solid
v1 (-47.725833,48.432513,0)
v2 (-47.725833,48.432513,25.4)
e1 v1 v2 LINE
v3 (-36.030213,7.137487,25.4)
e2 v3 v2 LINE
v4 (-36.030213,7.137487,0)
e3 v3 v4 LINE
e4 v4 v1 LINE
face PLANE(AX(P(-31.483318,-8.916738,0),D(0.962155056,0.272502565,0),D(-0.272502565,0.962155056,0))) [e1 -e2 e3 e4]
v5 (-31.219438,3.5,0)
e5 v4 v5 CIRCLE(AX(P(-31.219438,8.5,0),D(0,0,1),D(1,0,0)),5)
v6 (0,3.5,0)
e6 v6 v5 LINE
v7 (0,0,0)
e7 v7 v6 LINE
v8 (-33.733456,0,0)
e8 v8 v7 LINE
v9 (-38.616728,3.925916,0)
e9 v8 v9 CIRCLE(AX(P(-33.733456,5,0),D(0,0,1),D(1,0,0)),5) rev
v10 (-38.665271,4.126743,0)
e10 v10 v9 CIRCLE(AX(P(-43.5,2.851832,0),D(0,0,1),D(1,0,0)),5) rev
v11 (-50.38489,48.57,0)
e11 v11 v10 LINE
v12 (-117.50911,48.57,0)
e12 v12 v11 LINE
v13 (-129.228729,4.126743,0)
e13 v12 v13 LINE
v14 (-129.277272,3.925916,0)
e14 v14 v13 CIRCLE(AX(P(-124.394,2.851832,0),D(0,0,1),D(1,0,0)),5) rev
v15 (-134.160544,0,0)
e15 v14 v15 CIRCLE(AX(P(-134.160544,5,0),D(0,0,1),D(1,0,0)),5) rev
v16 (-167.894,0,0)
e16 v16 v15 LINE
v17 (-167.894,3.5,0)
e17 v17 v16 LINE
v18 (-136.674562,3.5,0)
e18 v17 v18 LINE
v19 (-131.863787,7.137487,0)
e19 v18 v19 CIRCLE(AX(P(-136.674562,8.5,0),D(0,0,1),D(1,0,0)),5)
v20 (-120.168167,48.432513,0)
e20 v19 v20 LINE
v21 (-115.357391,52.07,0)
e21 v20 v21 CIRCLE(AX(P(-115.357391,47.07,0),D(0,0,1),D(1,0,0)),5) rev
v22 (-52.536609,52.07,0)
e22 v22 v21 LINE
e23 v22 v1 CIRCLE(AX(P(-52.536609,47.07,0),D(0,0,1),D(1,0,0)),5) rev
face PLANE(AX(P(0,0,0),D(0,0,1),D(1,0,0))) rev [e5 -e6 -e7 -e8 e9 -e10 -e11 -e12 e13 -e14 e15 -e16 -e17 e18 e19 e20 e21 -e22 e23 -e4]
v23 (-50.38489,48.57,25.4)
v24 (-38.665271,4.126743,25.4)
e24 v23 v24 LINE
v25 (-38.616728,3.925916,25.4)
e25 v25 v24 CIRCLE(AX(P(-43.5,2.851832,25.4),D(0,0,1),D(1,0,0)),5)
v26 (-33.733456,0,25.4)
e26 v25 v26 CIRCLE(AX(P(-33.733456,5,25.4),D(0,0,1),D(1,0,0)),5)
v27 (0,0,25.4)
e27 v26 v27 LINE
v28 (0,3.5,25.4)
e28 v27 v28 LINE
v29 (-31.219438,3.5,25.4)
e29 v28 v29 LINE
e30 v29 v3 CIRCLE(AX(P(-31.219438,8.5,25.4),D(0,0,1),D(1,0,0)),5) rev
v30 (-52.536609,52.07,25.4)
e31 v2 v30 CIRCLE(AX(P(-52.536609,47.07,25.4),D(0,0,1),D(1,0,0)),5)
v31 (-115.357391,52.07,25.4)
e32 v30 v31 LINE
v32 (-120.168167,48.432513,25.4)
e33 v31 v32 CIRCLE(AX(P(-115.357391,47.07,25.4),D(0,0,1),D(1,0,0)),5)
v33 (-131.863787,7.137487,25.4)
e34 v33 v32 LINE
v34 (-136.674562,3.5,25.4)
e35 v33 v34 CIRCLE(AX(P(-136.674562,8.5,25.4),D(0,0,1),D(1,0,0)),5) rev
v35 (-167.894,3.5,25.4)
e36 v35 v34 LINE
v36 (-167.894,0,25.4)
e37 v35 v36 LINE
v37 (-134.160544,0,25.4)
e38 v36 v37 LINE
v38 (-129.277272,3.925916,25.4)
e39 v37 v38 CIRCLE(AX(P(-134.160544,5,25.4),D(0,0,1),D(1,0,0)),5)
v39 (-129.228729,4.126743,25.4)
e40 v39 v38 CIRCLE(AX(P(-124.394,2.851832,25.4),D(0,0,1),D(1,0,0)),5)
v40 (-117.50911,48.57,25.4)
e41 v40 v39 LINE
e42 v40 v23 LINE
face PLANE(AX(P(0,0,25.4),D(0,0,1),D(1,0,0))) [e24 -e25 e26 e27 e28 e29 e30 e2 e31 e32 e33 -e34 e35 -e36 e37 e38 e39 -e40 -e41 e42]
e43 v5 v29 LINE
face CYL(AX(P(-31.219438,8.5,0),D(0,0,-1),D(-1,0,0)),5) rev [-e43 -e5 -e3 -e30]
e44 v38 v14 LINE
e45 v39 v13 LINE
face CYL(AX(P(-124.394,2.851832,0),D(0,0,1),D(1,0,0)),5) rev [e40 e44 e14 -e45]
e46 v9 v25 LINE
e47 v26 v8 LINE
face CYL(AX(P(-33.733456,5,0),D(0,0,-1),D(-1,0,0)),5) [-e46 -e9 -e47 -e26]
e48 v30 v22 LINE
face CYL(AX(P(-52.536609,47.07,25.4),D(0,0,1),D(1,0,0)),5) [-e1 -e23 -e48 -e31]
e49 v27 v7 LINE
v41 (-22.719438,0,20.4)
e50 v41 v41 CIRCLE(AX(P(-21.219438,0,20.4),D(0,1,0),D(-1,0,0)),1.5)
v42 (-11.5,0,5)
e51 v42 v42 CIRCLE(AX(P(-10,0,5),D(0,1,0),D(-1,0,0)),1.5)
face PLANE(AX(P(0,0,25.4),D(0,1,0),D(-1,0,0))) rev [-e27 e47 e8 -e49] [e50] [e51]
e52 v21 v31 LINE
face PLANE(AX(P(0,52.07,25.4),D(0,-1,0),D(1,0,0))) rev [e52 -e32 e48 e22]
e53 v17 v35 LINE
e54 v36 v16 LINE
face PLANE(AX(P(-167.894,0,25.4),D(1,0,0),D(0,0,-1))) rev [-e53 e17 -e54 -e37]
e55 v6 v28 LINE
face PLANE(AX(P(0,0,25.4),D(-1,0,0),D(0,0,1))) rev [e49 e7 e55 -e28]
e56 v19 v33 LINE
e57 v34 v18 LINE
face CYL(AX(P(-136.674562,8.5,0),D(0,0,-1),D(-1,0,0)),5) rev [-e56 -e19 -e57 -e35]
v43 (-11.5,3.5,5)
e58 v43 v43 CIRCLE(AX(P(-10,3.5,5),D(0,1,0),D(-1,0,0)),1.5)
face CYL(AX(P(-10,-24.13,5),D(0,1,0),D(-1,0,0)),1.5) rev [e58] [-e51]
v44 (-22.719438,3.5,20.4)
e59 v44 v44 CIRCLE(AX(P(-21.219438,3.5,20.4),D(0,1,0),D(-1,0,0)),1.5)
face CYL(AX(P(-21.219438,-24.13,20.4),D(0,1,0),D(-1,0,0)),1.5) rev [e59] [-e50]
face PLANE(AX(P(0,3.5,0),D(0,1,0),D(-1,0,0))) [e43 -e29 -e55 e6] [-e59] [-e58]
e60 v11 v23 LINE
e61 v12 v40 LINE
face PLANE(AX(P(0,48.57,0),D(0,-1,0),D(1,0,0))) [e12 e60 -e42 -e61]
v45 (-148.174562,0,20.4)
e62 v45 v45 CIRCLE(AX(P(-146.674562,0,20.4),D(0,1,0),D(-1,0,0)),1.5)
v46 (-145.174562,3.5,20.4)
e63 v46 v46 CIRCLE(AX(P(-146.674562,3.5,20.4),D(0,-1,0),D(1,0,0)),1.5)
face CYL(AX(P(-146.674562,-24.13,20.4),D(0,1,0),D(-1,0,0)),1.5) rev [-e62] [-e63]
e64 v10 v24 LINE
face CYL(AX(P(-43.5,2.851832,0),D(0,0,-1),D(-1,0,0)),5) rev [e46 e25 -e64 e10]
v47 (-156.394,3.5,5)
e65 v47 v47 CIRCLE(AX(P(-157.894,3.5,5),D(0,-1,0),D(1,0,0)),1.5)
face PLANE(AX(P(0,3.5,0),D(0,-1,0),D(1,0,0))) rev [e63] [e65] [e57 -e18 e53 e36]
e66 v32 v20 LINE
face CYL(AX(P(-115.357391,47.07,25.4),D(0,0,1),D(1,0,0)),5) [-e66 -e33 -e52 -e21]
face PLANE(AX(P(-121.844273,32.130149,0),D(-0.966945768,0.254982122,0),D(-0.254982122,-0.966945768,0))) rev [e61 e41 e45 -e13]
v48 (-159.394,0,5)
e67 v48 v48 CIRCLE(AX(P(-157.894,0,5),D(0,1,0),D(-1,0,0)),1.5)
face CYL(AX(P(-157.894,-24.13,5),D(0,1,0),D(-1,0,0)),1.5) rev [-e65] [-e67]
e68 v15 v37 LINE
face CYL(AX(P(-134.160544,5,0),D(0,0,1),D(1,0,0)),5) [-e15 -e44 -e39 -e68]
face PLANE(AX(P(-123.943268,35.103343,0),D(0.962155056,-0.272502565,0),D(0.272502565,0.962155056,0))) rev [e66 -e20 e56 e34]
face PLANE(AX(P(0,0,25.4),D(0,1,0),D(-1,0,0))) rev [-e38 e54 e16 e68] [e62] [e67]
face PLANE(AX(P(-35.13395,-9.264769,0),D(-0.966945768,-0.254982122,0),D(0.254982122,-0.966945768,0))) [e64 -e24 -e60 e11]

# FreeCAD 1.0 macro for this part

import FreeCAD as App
import Part
import Sketcher


def edges_at(feature, points):
    """Names of the edges that pass closest to the given points."""
    edges = feature.Shape.Edges
    near = lambda p: min(range(len(edges)), key=lambda i: edges[i].distToShape(Part.Vertex(*p))[0])
    return sorted({f"Edge{near(p) + 1}" for p in points})

doc = App.newDocument("Part")
params = doc.addObject("Spreadsheet::Sheet", "Params")
for row, (alias, value) in enumerate([
    ("sketch1_height", "52.07 mm"),
    ("pad1_length", "25.4 mm"),
    ("sketch2_width", "35 mm"),
    ("sketch2_height", "48.57 mm"),
    ("pocket1_length", "25.4 mm"),
    ("sketch3_height", "3.5 mm"),
    ("pocket2_length", "25.4 mm"),
    ("fillet_radius", "5 mm"),
    ("fillet2_radius", "5 mm"),
    ("fillet3_radius", "5 mm"),
    ("fillet4_radius", "5 mm"),
    ("fillet5_radius", "5 mm"),
    ("fillet6_radius", "5 mm"),
    ("fillet7_radius", "5 mm"),
    ("sketch4_diameter", "3 mm"),
    ("pocket3_length", "76.2 mm"),
], start=1):
    params.set(f"A{row}", alias)
    params.set(f"B{row}", "=" + value)
    params.setAlias(f"B{row}", alias)

body = doc.addObject("PartDesign::Body", "Body")

# Sketch on XY plane
sketch1 = body.newObject("Sketcher::SketchObject", "Sketch")
sketch1.AttachmentSupport = (doc.getObject("XY_Plane"), [""])
sketch1.MapMode = "FlatFace"
sketch1.addGeometry(Part.LineSegment(App.Vector(-167.894, 52.07, 0), App.Vector(-167.894, 0, 0)), False)
sketch1.addGeometry(Part.LineSegment(App.Vector(-167.894, 0, 0), App.Vector(0, 0, 0)), False)
sketch1.addGeometry(Part.LineSegment(App.Vector(0, 0, 0), App.Vector(0, 52.07, 0)), False)
sketch1.addGeometry(Part.LineSegment(App.Vector(0, 52.07, 0), App.Vector(-167.894, 52.07, 0)), False)
sketch1.addConstraint(Sketcher.Constraint("Coincident", 0, 2, 1, 1))
sketch1.addConstraint(Sketcher.Constraint("Coincident", 1, 2, 2, 1))
sketch1.addConstraint(Sketcher.Constraint("Coincident", 2, 2, 3, 1))
sketch1.addConstraint(Sketcher.Constraint("Coincident", 3, 2, 0, 1))
sketch1.addConstraint(Sketcher.Constraint("Vertical", 0))
sketch1.addConstraint(Sketcher.Constraint("Horizontal", 1))
sketch1.addConstraint(Sketcher.Constraint("Vertical", 2))
sketch1.addConstraint(Sketcher.Constraint("Horizontal", 3))
sketch1.addConstraint(Sketcher.Constraint("Coincident", 1, 2, -1, 1))
sketch1.addConstraint(Sketcher.Constraint("DistanceY", 0, 2, 0, 1, 52.07))
sketch1.addConstraint(Sketcher.Constraint("DistanceX", 1, 1, 1, 2, 167.894))
sketch1.setExpression("Constraints[9]", "Params.sketch1_height")
pad1 = body.newObject("PartDesign::Pad", "Pad")
pad1.Profile = sketch1
pad1.setExpression("Length", "Params.pad1_length")

# Sketch on XY plane
sketch2 = body.newObject("Sketcher::SketchObject", "Sketch001")
sketch2.AttachmentSupport = (doc.getObject("XY_Plane"), [""])
sketch2.MapMode = "FlatFace"
sketch2.AttachmentOffset = App.Placement(App.Vector(0, 0, 25.4), App.Rotation())
sketch2.addGeometry(Part.LineSegment(App.Vector(-119.137954, 52.07, 0), App.Vector(-167.894, 52.07, 0)), False)
sketch2.addGeometry(Part.LineSegment(App.Vector(-167.894, 52.07, 0), App.Vector(-167.894, 3.5, 0)), False)
sketch2.addGeometry(Part.LineSegment(App.Vector(-167.894, 3.5, 0), App.Vector(-132.894, 3.5, 0)), False)
sketch2.addGeometry(Part.LineSegment(App.Vector(-132.894, 3.5, 0), App.Vector(-120.129227, 48.57, 0)), False)
sketch2.addGeometry(Part.LineSegment(App.Vector(-120.129227, 48.57, 0), App.Vector(-119.137954, 52.07, 0)), False)
sketch2.addGeometry(Part.LineSegment(App.Vector(-35, 3.5, 0), App.Vector(0, 3.5, 0)), False)
sketch2.addGeometry(Part.LineSegment(App.Vector(0, 3.5, 0), App.Vector(0, 52.07, 0)), False)
sketch2.addGeometry(Part.LineSegment(App.Vector(0, 52.07, 0), App.Vector(-48.756046, 52.07, 0)), False)
sketch2.addGeometry(Part.LineSegment(App.Vector(-48.756046, 52.07, 0), App.Vector(-47.764773, 48.57, 0)), False)
sketch2.addGeometry(Part.LineSegment(App.Vector(-47.764773, 48.57, 0), App.Vector(-35, 3.5, 0)), False)
sketch2.addConstraint(Sketcher.Constraint("Coincident", 0, 2, 1, 1))
sketch2.addConstraint(Sketcher.Constraint("Coincident", 1, 2, 2, 1))
sketch2.addConstraint(Sketcher.Constraint("Coincident", 2, 2, 3, 1))
sketch2.addConstraint(Sketcher.Constraint("Coincident", 3, 2, 4, 1))
sketch2.addConstraint(Sketcher.Constraint("Coincident", 4, 2, 0, 1))
sketch2.addConstraint(Sketcher.Constraint("Coincident", 5, 2, 6, 1))
sketch2.addConstraint(Sketcher.Constraint("Coincident", 6, 2, 7, 1))
sketch2.addConstraint(Sketcher.Constraint("Coincident", 7, 2, 8, 1))
sketch2.addConstraint(Sketcher.Constraint("Coincident", 8, 2, 9, 1))
sketch2.addConstraint(Sketcher.Constraint("Coincident", 9, 2, 5, 1))
sketch2.addConstraint(Sketcher.Constraint("Horizontal", 0))
sketch2.addConstraint(Sketcher.Constraint("Vertical", 1))
sketch2.addConstraint(Sketcher.Constraint("Horizontal", 2))
sketch2.addConstraint(Sketcher.Constraint("Horizontal", 5))
sketch2.addConstraint(Sketcher.Constraint("Vertical", 6))
sketch2.addConstraint(Sketcher.Constraint("Horizontal", 7))
sketch2.addConstraint(Sketcher.Constraint("PointOnObject", 5, 2, -2))
sketch2.addConstraint(Sketcher.Constraint("Parallel", 3, 4))
sketch2.addConstraint(Sketcher.Constraint("Parallel", 8, 9))
sketch2.addConstraint(Sketcher.Constraint("Horizontal", 2, 2, 5, 2))
sketch2.addConstraint(Sketcher.Constraint("Horizontal", 4, 2, 6, 2))
sketch2.addConstraint(Sketcher.Constraint("Horizontal", 3, 2, 8, 2))
sketch2.addConstraint(Sketcher.Constraint("Equal", 2, 5))
sketch2.addConstraint(Sketcher.Constraint("Equal", 0, 7))
sketch2.addConstraint(Sketcher.Constraint("DistanceX", 2, 1, 2, 2, 35.0))
sketch2.addConstraint(Sketcher.Constraint("DistanceY", 1, 2, 1, 1, 48.57))
sketch2.addConstraint(Sketcher.Constraint("DistanceY", -1, 1, 1, 2, 3.5))
sketch2.addConstraint(Sketcher.Constraint("DistanceY", 3, 2, 0, 2, 3.5))
sketch2.addConstraint(Sketcher.Constraint("DistanceX", 0, 2, -1, 1, 167.894))
sketch2.addConstraint(Sketcher.Constraint("Distance", 3, 46.842762))
sketch2.setExpression("Constraints[24]", "Params.sketch2_width")
sketch2.setExpression("Constraints[25]", "Params.sketch2_height")
pocket1 = body.newObject("PartDesign::Pocket", "Pocket")
pocket1.Profile = sketch2
pocket1.setExpression("Length", "Params.pocket1_length")

# Sketch on XY plane
sketch3 = body.newObject("Sketcher::SketchObject", "Sketch002")
sketch3.AttachmentSupport = (doc.getObject("XY_Plane"), [""])
sketch3.MapMode = "FlatFace"
sketch3.AttachmentOffset = App.Placement(App.Vector(0, 0, 25.4), App.Rotation())
sketch3.addGeometry(Part.LineSegment(App.Vector(-50.38489, 48.57, 0), App.Vector(-117.50911, 48.57, 0)), False)
sketch3.addGeometry(Part.LineSegment(App.Vector(-117.50911, 48.57, 0), App.Vector(-129.394, 3.5, 0)), False)
sketch3.addGeometry(Part.LineSegment(App.Vector(-129.394, 3.5, 0), App.Vector(-129.394, 0, 0)), False)
sketch3.addGeometry(Part.LineSegment(App.Vector(-129.394, 0, 0), App.Vector(-38.5, 0, 0)), False)
sketch3.addGeometry(Part.LineSegment(App.Vector(-38.5, 0, 0), App.Vector(-38.5, 3.5, 0)), False)
sketch3.addGeometry(Part.LineSegment(App.Vector(-38.5, 3.5, 0), App.Vector(-50.38489, 48.57, 0)), False)
sketch3.addConstraint(Sketcher.Constraint("Coincident", 0, 2, 1, 1))
sketch3.addConstraint(Sketcher.Constraint("Coincident", 1, 2, 2, 1))
sketch3.addConstraint(Sketcher.Constraint("Coincident", 2, 2, 3, 1))
sketch3.addConstraint(Sketcher.Constraint("Coincident", 3, 2, 4, 1))
sketch3.addConstraint(Sketcher.Constraint("Coincident", 4, 2, 5, 1))
sketch3.addConstraint(Sketcher.Constraint("Coincident", 5, 2, 0, 1))
sketch3.addConstraint(Sketcher.Constraint("Horizontal", 0))
sketch3.addConstraint(Sketcher.Constraint("Vertical", 2))
sketch3.addConstraint(Sketcher.Constraint("Horizontal", 3))
sketch3.addConstraint(Sketcher.Constraint("Vertical", 4))
sketch3.addConstraint(Sketcher.Constraint("PointOnObject", 2, 2, -1))
sketch3.addConstraint(Sketcher.Constraint("Horizontal", 1, 2, 4, 2))
sketch3.addConstraint(Sketcher.Constraint("Equal", 1, 5))
sketch3.addConstraint(Sketcher.Constraint("DistanceY", 2, 2, 2, 1, 3.5))
sketch3.addConstraint(Sketcher.Constraint("DistanceX", 3, 2, -1, 1, 38.5))
sketch3.addConstraint(Sketcher.Constraint("DistanceX", 3, 1, 3, 2, 90.894))
sketch3.addConstraint(Sketcher.Constraint("DistanceY", -1, 1, 0, 2, 48.57))
sketch3.addConstraint(Sketcher.Constraint("DistanceX", 0, 2, 0, 1, 67.12422))
sketch3.setExpression("Constraints[13]", "Params.sketch3_height")
pocket2 = body.newObject("PartDesign::Pocket", "Pocket001")
pocket2.Profile = sketch3
pocket2.setExpression("Length", "Params.pocket2_length")
doc.recompute()

fillet = body.newObject("PartDesign::Fillet", "Fillet")
fillet.Base = (pocket2, edges_at(pocket2, [(-48.756, 52.07, 12.7)]))
fillet.setExpression("Radius", "Params.fillet_radius")
doc.recompute()

fillet2 = body.newObject("PartDesign::Fillet", "Fillet001")
fillet2.Base = (fillet, edges_at(fillet, [(-119.138, 52.07, 12.7)]))
fillet2.setExpression("Radius", "Params.fillet2_radius")
doc.recompute()

fillet3 = body.newObject("PartDesign::Fillet", "Fillet002")
fillet3.Base = (fillet2, edges_at(fillet2, [(-38.5, 3.5, 12.7)]))
fillet3.setExpression("Radius", "Params.fillet3_radius")
doc.recompute()

fillet4 = body.newObject("PartDesign::Fillet", "Fillet003")
fillet4.Base = (fillet3, edges_at(fillet3, [(-129.394, 3.5, 12.7)]))
fillet4.setExpression("Radius", "Params.fillet4_radius")
doc.recompute()

fillet5 = body.newObject("PartDesign::Fillet", "Fillet004")
fillet5.Base = (fillet4, edges_at(fillet4, [(-129.394, 0, 12.7)]))
fillet5.setExpression("Radius", "Params.fillet5_radius")
doc.recompute()

fillet6 = body.newObject("PartDesign::Fillet", "Fillet005")
fillet6.Base = (fillet5, edges_at(fillet5, [(-38.5, 0, 12.7)]))
fillet6.setExpression("Radius", "Params.fillet6_radius")
doc.recompute()

fillet7 = body.newObject("PartDesign::Fillet", "Fillet006")
fillet7.Base = (fillet6, edges_at(fillet6, [(-132.894, 3.5, 12.7), (-35, 3.5, 12.7)]))
fillet7.setExpression("Radius", "Params.fillet7_radius")

# Sketch on XZ plane
sketch4 = body.newObject("Sketcher::SketchObject", "Sketch003")
sketch4.AttachmentSupport = (doc.getObject("XZ_Plane"), [""])
sketch4.MapMode = "FlatFace"
sketch4.AttachmentOffset = App.Placement(App.Vector(0, 0, -52.07), App.Rotation())
sketch4.addGeometry(Part.Circle(App.Vector(-157.894, 5, 0), App.Vector(0, 0, 1), 1.5), False)
sketch4.addGeometry(Part.Circle(App.Vector(-146.674562, 20.4, 0), App.Vector(0, 0, 1), 1.5), False)
sketch4.addGeometry(Part.Circle(App.Vector(-21.219438, 20.4, 0), App.Vector(0, 0, 1), 1.5), False)
sketch4.addGeometry(Part.Circle(App.Vector(-10, 5, 0), App.Vector(0, 0, 1), 1.5), False)
sketch4.addConstraint(Sketcher.Constraint("Equal", 0, 1))
sketch4.addConstraint(Sketcher.Constraint("Equal", 1, 2))
sketch4.addConstraint(Sketcher.Constraint("Equal", 2, 3))
sketch4.addConstraint(Sketcher.Constraint("Horizontal", 1, 3, 2, 3))
sketch4.addConstraint(Sketcher.Constraint("Horizontal", 0, 3, 3, 3))
sketch4.addConstraint(Sketcher.Constraint("Diameter", 0, 3.0))
sketch4.addConstraint(Sketcher.Constraint("DistanceY", -1, 1, 0, 3, 5.0))
sketch4.addConstraint(Sketcher.Constraint("DistanceX", 3, 3, -1, 1, 10.0))
sketch4.addConstraint(Sketcher.Constraint("DistanceY", -1, 1, 1, 3, 20.4))
sketch4.addConstraint(Sketcher.Constraint("DistanceX", 0, 3, -1, 1, 157.894))
sketch4.addConstraint(Sketcher.Constraint("DistanceX", 1, 3, -1, 1, 146.674562))
sketch4.addConstraint(Sketcher.Constraint("DistanceX", 2, 3, -1, 1, 21.219438))
sketch4.setExpression("Constraints[5]", "Params.sketch4_diameter")
pocket3 = body.newObject("PartDesign::Pocket", "Pocket002")
pocket3.Profile = sketch4
pocket3.setExpression("Length", "Params.pocket3_length")
pocket3.Reversed = True

doc.recompute()
